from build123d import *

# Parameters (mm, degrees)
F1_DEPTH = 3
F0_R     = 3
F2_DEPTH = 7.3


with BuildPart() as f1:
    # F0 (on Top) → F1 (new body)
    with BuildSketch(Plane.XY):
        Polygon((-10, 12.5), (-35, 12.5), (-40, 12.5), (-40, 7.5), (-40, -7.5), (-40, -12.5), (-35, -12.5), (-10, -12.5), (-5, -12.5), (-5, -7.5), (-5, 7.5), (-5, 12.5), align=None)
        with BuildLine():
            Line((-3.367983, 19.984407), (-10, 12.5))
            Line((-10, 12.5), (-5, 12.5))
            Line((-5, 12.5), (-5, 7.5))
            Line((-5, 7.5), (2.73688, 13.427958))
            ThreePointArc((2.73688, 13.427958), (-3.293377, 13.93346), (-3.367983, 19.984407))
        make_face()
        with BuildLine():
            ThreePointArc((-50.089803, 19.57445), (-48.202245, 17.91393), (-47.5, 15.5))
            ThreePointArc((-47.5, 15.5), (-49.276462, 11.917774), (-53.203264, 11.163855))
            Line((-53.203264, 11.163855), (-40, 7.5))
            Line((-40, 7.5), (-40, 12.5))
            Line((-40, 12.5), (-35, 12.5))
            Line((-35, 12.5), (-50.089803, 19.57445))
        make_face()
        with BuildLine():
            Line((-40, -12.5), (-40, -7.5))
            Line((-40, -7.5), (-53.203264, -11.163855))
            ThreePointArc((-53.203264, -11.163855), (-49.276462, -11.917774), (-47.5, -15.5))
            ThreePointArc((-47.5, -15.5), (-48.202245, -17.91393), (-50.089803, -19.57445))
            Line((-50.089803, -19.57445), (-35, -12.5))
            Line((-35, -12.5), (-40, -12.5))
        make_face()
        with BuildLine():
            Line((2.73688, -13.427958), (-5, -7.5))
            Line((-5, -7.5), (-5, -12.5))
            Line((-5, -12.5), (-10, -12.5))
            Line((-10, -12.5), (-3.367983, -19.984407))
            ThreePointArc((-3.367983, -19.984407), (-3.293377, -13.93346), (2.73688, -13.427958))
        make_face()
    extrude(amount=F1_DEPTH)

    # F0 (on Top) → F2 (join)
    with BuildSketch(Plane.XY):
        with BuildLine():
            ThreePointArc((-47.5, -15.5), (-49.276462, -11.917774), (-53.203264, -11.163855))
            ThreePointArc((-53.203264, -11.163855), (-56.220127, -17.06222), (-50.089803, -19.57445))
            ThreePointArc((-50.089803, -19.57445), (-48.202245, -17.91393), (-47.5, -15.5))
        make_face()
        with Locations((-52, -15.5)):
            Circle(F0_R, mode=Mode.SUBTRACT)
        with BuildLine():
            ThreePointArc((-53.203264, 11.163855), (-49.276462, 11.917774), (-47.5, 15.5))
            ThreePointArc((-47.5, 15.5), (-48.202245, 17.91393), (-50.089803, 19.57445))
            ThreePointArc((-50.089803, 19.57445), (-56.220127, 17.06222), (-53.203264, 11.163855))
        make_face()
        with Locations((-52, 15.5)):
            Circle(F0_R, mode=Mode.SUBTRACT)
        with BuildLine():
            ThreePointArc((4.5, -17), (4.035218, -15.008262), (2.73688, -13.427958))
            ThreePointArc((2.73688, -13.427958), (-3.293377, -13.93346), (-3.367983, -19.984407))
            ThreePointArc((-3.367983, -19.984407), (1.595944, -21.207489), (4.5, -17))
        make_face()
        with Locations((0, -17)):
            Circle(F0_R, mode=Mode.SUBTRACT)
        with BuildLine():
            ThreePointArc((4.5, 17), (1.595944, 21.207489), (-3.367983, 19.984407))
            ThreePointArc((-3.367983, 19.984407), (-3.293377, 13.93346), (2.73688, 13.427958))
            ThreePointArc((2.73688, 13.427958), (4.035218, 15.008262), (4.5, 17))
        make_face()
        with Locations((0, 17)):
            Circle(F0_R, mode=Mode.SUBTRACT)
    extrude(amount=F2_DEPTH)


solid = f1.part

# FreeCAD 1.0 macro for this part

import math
import FreeCAD as App
import Part
import Sketcher
from FreeCAD import Vector
Q = App.Units.Quantity

doc = App.newDocument("Part")
body = doc.addObject("PartDesign::Body", "Body")

# Sketch on XY plane
sketch1 = doc.addObject("Sketcher::SketchObject", "Sketch")
body.addObject(sketch1)
sketch1.AttachmentSupport = (doc.XY_Plane, [""])
sketch1.MapMode = "FlatFace"
sketch1.addGeometry([
    Part.LineSegment(Vector(-40, 7.5, 0), Vector(-40, -7.5, 0)),  # 0
    Part.LineSegment(Vector(-40, -7.5, 0), Vector(-53.203264, -11.163855, 0)),  # 1
    Part.ArcOfCircle(Part.Circle(Vector(-51.999999, -15.499999, 0), Vector(0, 0, 1), 4.499999), math.radians(-0.000009), math.radians(105.509147)),  # 2
    Part.ArcOfCircle(Part.Circle(Vector(-51.999998, -15.500001, 0), Vector(0, 0, 1), 4.499998), math.radians(-64.881745), math.radians(0.000011)),  # 3
    Part.LineSegment(Vector(-50.089803, -19.57445, 0), Vector(-35, -12.5, 0)),  # 4
    Part.LineSegment(Vector(-35, -12.5, 0), Vector(-10, -12.5, 0)),  # 5
    Part.LineSegment(Vector(-10, -12.5, 0), Vector(-3.367983, -19.984407, 0)),  # 6
    Part.ArcOfCircle(Part.Circle(Vector(0, -17, 0), Vector(0, 0, 1), 4.499999), math.radians(52.540845), math.radians(221.544515)),  # 7
    Part.LineSegment(Vector(2.73688, -13.427958, 0), Vector(-5, -7.5, 0)),  # 8
    Part.LineSegment(Vector(-5, -7.5, 0), Vector(-5, 7.5, 0)),  # 9
    Part.LineSegment(Vector(-5, 7.5, 0), Vector(2.73688, 13.427958, 0)),  # 10
    Part.ArcOfCircle(Part.Circle(Vector(0, 17, 0), Vector(0, 0, 1), 4.499999), math.radians(138.455485), math.radians(307.459155)),  # 11
    Part.LineSegment(Vector(-3.367983, 19.984407, 0), Vector(-10, 12.5, 0)),  # 12
    Part.LineSegment(Vector(-10, 12.5, 0), Vector(-35, 12.5, 0)),  # 13
    Part.LineSegment(Vector(-35, 12.5, 0), Vector(-50.089803, 19.57445, 0)),  # 14
    Part.ArcOfCircle(Part.Circle(Vector(-51.999998, 15.500001, 0), Vector(0, 0, 1), 4.499998), math.radians(-0.000011), math.radians(64.881745)),  # 15
    Part.ArcOfCircle(Part.Circle(Vector(-51.999999, 15.499999, 0), Vector(0, 0, 1), 4.499999), math.radians(-105.509147), math.radians(0.000009)),  # 16
    Part.LineSegment(Vector(-53.203264, 11.163855, 0), Vector(-40, 7.5, 0)),  # 17
], False)
sketch1.addConstraint([
    Sketcher.Constraint("Coincident", 0, 2, 1, 1),
    Sketcher.Constraint("Tangent", 1, 2, 2, 2),
    Sketcher.Constraint("Tangent", 2, 1, 3, 2),
    Sketcher.Constraint("Tangent", 3, 1, 4, 1),
    Sketcher.Constraint("Coincident", 4, 2, 5, 1),
    Sketcher.Constraint("Coincident", 5, 2, 6, 1),
    Sketcher.Constraint("Tangent", 6, 2, 7, 2),
    Sketcher.Constraint("Tangent", 7, 1, 8, 1),
    Sketcher.Constraint("Coincident", 8, 2, 9, 1),
    Sketcher.Constraint("Coincident", 9, 2, 10, 1),
    Sketcher.Constraint("Tangent", 10, 2, 11, 2),
    Sketcher.Constraint("Tangent", 11, 1, 12, 1),
    Sketcher.Constraint("Coincident", 12, 2, 13, 1),
    Sketcher.Constraint("Coincident", 13, 2, 14, 1),
    Sketcher.Constraint("Tangent", 14, 2, 15, 2),
    Sketcher.Constraint("Tangent", 15, 1, 16, 2),
    Sketcher.Constraint("Tangent", 16, 1, 17, 1),
    Sketcher.Constraint("Coincident", 17, 2, 0, 1),
    Sketcher.Constraint("Vertical", 0),
    Sketcher.Constraint("Horizontal", 5),
    Sketcher.Constraint("Vertical", 9),
    Sketcher.Constraint("Horizontal", 13),
    Sketcher.Constraint("Equal", 2, 3),
    Sketcher.Constraint("Equal", 3, 7),
    Sketcher.Constraint("Equal", 7, 11),
    Sketcher.Constraint("Equal", 11, 15),
    Sketcher.Constraint("Equal", 15, 16),
    Sketcher.Constraint("Symmetric", 7, 3, 11, 3, -1, 1),
    Sketcher.Constraint("Symmetric", 2, 3, 15, 3, -1),
    Sketcher.Constraint("Symmetric", 7, 1, 10, 2, -1),
    Sketcher.Constraint("Symmetric", 5, 2, 12, 2, -1),
    Sketcher.Constraint("Horizontal", 3, 3, 2, 1),
    Sketcher.Constraint("Horizontal", 0, 2, 8, 2),
    Sketcher.Constraint("Horizontal", 16, 3, 15, 1),
    Sketcher.Constraint("Horizontal", 9, 2, 17, 2),
    Sketcher.Constraint("Vertical", 4, 2, 13, 2),
    Sketcher.Constraint("Radius", 2, Q("4.499999 mm")),
    Sketcher.Constraint("DistanceX", 5, 1, 5, 2, Q("25 mm")),
    Sketcher.Constraint("DistanceY", 0, 2, 0, 1, Q("15 mm")),
    Sketcher.Constraint("Distance", 6, Q("10 mm")),
    Sketcher.Constraint("DistanceX", 2, 3, -1, 1, Q("51.999999 mm")),
    Sketcher.Constraint("DistanceY", 7, 3, -1, 1, Q("17 mm")),
    Sketcher.Constraint("DistanceX", 0, 2, -1, 1, Q("40 mm")),
    Sketcher.Constraint("DistanceX", 4, 2, -1, 1, Q("35 mm")),
    Sketcher.Constraint("DistanceX", 8, 2, -1, 1, Q("5 mm")),
    Sketcher.Constraint("DistanceY", 2, 3, 15, 3, Q("31 mm")),
])
pad1 = doc.addObject("PartDesign::Pad", "Pad")
body.addObject(pad1)
pad1.Profile = sketch1
pad1.Length = 3

# Sketch on XY plane
sketch2 = doc.addObject("Sketcher::SketchObject", "Sketch001")
body.addObject(sketch2)
sketch2.AttachmentSupport = (doc.XY_Plane, [""])
sketch2.MapMode = "FlatFace"
sketch2.addGeometry([
    Part.ArcOfCircle(Part.Circle(Vector(-51.999999, -15.499999, 0), Vector(0, 0, 1), 4.499999), math.radians(-0.000009), math.radians(105.509147)),  # 0
    Part.ArcOfCircle(Part.Circle(Vector(-52.000001, -15.5, 0), Vector(0, 0, 1), 4.5), math.radians(105.509126), math.radians(295.118285)),  # 1
    Part.ArcOfCircle(Part.Circle(Vector(-51.999998, -15.500001, 0), Vector(0, 0, 1), 4.499998), math.radians(-64.881745), math.radians(0.000011)),  # 2
    Part.Circle(Vector(-52, -15.5, 0), Vector(0, 0, 1), 3),  # 3
    Part.ArcOfCircle(Part.Circle(Vector(-51.999999, 15.499999, 0), Vector(0, 0, 1), 4.499999), math.radians(-105.509147), math.radians(0.000009)),  # 4
    Part.ArcOfCircle(Part.Circle(Vector(-51.999998, 15.500001, 0), Vector(0, 0, 1), 4.499998), math.radians(-0.000011), math.radians(64.881745)),  # 5
    Part.ArcOfCircle(Part.Circle(Vector(-52.000001, 15.5, 0), Vector(0, 0, 1), 4.5), math.radians(64.881715), math.radians(254.490874)),  # 6
    Part.Circle(Vector(-52, 15.5, 0), Vector(0, 0, 1), 3),  # 7
    Part.ArcOfCircle(Part.Circle(Vector(0.000006, -16.999997, 0), Vector(0, 0, 1), 4.499994), math.radians(-0.000034), math.radians(52.540897)),  # 8
    Part.ArcOfCircle(Part.Circle(Vector(0, -17, 0), Vector(0, 0, 1), 4.499999), math.radians(52.540845), math.radians(221.544515)),  # 9
    Part.ArcOfCircle(Part.Circle(Vector(0.000001, -17, 0), Vector(0, 0, 1), 4.499999), math.radians(-138.455501), math.radians(0.000006)),  # 10
    Part.Circle(Vector(0, -17, 0), Vector(0, 0, 1), 3),  # 11
    Part.ArcOfCircle(Part.Circle(Vector(0.000001, 17, 0), Vector(0, 0, 1), 4.499999), math.radians(-0.000006), math.radians(138.455501)),  # 12
    Part.ArcOfCircle(Part.Circle(Vector(0, 17, 0), Vector(0, 0, 1), 4.499999), math.radians(138.455485), math.radians(307.459155)),  # 13
    Part.ArcOfCircle(Part.Circle(Vector(0.000006, 16.999997, 0), Vector(0, 0, 1), 4.499994), math.radians(-52.540897), math.radians(0.000034)),  # 14
    Part.Circle(Vector(0, 17, 0), Vector(0, 0, 1), 3),  # 15
], False)
sketch2.addConstraint([
    Sketcher.Constraint("Tangent", 0, 2, 1, 1),
    Sketcher.Constraint("Tangent", 1, 2, 2, 1),
    Sketcher.Constraint("Tangent", 2, 2, 0, 1),
    Sketcher.Constraint("Tangent", 4, 2, 5, 1),
    Sketcher.Constraint("Tangent", 5, 2, 6, 1),
    Sketcher.Constraint("Tangent", 6, 2, 4, 1),
    Sketcher.Constraint("Tangent", 8, 2, 9, 1),
    Sketcher.Constraint("Tangent", 9, 2, 10, 1),
    Sketcher.Constraint("Tangent", 10, 2, 8, 1),
    Sketcher.Constraint("Tangent", 12, 2, 13, 1),
    Sketcher.Constraint("Tangent", 13, 2, 14, 1),
    Sketcher.Constraint("Tangent", 14, 2, 12, 1),
    Sketcher.Constraint("Coincident", 3, 3, 0, 3),
    Sketcher.Constraint("Coincident", 7, 3, 4, 3),
    Sketcher.Constraint("Coincident", 11, 3, 8, 3),
    Sketcher.Constraint("Coincident", 15, 3, 12, 3),
    Sketcher.Constraint("Equal", 2, 4),
    Sketcher.Constraint("Equal", 3, 7),
    Sketcher.Constraint("Equal", 6, 9),
    Sketcher.Constraint("Equal", 7, 11),
    Sketcher.Constraint("Equal", 10, 12),
    Sketcher.Constraint("Equal", 11, 15),
    Sketcher.Constraint("Symmetric", 8, 3, 12, 3, -1, 1),
    Sketcher.Constraint("Symmetric", 0, 3, 4, 3, -1),
    Sketcher.Constraint("Symmetric", 9, 2, 12, 2, -1),
    Sketcher.Constraint("Horizontal", 3, 3, 2, 2),
    Sketcher.Constraint("Horizontal", 7, 3, 4, 2),
    Sketcher.Constraint("Horizontal", 11, 3, 10, 2),
    Sketcher.Constraint("Horizontal", 15, 3, 14, 2),
    Sketcher.Constraint("Vertical", 1, 2, 5, 2),
    Sketcher.Constraint("Vertical", 0, 2, 6, 2),
    Sketcher.Constraint("Vertical", 8, 2, 13, 2),
    Sketcher.Constraint("Diameter", 3, Q("6 mm")),
    Sketcher.Constraint("Radius", 0, Q("4.499999 mm")),
    Sketcher.Constraint("DistanceX", 0, 3, -1, 1, Q("51.999999 mm")),
    Sketcher.Constraint("DistanceY", 9, 3, -1, 1, Q("17 mm")),
    Sketcher.Constraint("DistanceY", 0, 3, 4, 3, Q("30.999999 mm")),
    Sketcher.Constraint("DistanceY", 1, 2, -1, 1, Q("19.57445 mm")),
    Sketcher.Constraint("DistanceX", -1, 1, 8, 2, Q("2.73688 mm")),
    Sketcher.Constraint("DistanceX", 0, 2, 1, 2, Q("3.113461 mm")),
    Sketcher.Constraint("DistanceX", 9, 2, 8, 3, Q("3.367989 mm")),
])
pad2 = doc.addObject("PartDesign::Pad", "Pad001")
body.addObject(pad2)
pad2.Profile = sketch2
pad2.Length = 7.3

doc.recompute()
